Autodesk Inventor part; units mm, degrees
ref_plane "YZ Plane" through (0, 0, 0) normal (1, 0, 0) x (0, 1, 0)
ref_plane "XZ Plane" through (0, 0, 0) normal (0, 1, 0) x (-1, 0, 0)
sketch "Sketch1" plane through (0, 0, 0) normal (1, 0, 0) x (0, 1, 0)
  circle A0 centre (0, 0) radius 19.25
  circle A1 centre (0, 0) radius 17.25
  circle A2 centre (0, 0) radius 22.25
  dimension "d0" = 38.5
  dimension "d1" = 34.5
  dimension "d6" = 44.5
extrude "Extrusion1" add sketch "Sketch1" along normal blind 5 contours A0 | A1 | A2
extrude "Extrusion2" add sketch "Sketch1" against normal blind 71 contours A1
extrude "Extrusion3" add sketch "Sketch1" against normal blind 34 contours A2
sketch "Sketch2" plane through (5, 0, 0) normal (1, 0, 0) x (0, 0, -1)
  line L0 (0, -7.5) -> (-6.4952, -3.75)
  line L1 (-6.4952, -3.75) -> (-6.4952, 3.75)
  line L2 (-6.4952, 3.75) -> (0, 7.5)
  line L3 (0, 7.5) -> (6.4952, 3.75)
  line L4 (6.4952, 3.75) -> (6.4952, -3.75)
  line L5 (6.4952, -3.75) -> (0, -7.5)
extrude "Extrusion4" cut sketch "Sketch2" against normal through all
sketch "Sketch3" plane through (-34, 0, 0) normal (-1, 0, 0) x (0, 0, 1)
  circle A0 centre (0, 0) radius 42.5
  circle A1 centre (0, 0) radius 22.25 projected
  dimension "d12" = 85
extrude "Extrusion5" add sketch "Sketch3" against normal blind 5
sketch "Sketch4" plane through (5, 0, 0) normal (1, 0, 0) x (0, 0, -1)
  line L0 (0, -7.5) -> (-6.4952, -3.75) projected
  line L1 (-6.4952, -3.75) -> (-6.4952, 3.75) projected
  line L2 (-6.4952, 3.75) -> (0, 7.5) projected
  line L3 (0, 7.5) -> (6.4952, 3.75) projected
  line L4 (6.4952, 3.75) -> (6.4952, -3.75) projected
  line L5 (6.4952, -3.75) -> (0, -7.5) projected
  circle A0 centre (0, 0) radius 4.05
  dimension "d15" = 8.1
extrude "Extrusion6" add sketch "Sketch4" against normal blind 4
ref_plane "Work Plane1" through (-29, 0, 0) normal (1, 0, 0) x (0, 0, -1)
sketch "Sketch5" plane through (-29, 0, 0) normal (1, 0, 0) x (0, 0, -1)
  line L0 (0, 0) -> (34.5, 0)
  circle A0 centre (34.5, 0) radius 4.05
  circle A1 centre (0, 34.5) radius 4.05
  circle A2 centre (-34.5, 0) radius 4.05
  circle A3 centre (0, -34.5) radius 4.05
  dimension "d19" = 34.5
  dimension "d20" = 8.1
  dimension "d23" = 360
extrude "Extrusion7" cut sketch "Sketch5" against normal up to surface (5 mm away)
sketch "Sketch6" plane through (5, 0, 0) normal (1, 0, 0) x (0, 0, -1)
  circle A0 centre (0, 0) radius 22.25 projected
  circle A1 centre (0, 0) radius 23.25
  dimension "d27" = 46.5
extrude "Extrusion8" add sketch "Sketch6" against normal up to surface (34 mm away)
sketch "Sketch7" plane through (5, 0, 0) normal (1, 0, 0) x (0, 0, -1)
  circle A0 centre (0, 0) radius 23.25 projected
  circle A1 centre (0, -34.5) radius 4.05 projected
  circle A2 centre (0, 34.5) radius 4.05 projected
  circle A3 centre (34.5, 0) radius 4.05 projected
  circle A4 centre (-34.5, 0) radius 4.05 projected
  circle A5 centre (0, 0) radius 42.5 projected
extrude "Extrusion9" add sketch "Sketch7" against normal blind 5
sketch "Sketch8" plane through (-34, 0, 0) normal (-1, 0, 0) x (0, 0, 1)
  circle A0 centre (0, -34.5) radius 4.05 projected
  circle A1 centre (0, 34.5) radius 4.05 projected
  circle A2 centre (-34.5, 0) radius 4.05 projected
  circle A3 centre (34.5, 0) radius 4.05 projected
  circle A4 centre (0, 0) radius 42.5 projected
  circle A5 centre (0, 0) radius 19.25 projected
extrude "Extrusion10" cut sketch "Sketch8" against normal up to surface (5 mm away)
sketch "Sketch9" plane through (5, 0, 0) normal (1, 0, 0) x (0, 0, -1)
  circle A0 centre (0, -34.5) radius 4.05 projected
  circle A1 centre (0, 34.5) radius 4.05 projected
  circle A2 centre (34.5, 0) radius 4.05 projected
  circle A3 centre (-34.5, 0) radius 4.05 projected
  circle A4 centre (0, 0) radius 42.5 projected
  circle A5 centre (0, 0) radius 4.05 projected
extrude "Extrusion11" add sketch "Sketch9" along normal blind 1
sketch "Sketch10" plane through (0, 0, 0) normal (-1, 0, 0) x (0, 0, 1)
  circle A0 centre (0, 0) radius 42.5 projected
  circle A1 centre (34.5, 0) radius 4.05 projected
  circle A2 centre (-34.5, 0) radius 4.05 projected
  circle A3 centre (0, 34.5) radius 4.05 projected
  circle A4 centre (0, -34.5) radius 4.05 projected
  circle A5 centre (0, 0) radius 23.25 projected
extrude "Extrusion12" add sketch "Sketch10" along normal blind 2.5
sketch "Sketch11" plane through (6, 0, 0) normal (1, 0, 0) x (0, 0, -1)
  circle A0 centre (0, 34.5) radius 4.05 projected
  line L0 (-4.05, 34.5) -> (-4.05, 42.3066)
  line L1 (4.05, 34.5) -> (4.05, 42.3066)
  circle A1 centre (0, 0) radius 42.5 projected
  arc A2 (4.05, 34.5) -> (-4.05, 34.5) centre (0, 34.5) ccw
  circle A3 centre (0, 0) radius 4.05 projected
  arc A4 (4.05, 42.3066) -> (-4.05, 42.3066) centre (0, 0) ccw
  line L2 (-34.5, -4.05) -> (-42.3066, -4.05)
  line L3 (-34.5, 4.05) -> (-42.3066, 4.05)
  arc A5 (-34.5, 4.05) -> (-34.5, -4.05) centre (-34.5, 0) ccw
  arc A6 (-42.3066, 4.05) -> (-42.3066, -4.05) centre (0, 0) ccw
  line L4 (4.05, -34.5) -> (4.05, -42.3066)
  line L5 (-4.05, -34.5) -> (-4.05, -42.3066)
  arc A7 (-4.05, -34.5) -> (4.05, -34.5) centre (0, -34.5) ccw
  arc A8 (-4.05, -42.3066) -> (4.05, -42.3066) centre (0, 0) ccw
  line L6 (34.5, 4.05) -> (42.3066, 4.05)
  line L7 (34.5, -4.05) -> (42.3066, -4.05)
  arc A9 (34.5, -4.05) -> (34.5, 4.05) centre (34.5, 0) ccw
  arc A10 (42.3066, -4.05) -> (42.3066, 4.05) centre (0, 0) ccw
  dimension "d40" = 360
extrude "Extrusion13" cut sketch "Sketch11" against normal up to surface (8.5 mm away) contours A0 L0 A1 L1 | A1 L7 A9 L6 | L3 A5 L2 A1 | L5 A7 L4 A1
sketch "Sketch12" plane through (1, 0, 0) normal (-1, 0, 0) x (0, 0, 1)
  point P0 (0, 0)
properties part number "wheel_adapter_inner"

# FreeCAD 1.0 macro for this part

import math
import FreeCAD as App
import Part
import Sketcher
Q = App.Units.Quantity

doc = App.newDocument("Part")
params = doc.addObject("Spreadsheet::Sheet", "Params")
for row, (alias, value) in enumerate([
    ("sketch1_diameter", "44.5 mm"),
    ("pad1_length", "5 mm"),
    ("sketch2_diameter", "34.5 mm"),
    ("pad2_length", "71 mm"),
    ("sketch3_diameter", "44.5 mm"),
    ("sketch3_diameter2", "38.5 mm"),
    ("pad3_length", "34 mm"),
    ("sketch4_width", "7.5 mm"),
    ("sketch5_diameter", "85 mm"),
    ("sketch5_diameter2", "44.5 mm"),
    ("pad4_length", "5 mm"),
    ("sketch6_diameter", "8.1 mm"),
    ("sketch6_width", "7.5 mm"),
    ("pad5_length", "4 mm"),
    ("sketch7_diameter", "8.1 mm"),
    ("pocket2_length", "5 mm"),
    ("sketch8_diameter", "46.5 mm"),
    ("sketch8_diameter2", "44.5 mm"),
    ("pad6_length", "34 mm"),
    ("sketch9_diameter", "85 mm"),
    ("sketch9_diameter2", "8.1 mm"),
    ("sketch9_diameter3", "46.5 mm"),
    ("pad7_length", "5 mm"),
    ("sketch10_diameter", "85 mm"),
    ("sketch10_diameter2", "8.1 mm"),
    ("sketch10_diameter3", "38.5 mm"),
    ("pocket3_length", "5 mm"),
    ("sketch11_diameter", "85 mm"),
    ("sketch11_diameter2", "8.1 mm"),
    ("pad8_length", "1 mm"),
    ("sketch12_diameter", "85 mm"),
    ("sketch12_diameter2", "8.1 mm"),
    ("sketch12_diameter3", "46.5 mm"),
    ("pad9_length", "2.5 mm"),
    ("sketch13_radius", "42.5 mm"),
    ("sketch13_radius2", "4.05 mm"),
    ("pocket4_length", "8.5 mm"),
], start=1):
    params.set(f"A{row}", alias)
    params.set(f"B{row}", "=" + value)
    params.setAlias(f"B{row}", alias)

body = doc.addObject("PartDesign::Body", "Body")

# Sketch on YZ plane
sketch1 = body.newObject("Sketcher::SketchObject", "Sketch")
sketch1.AttachmentSupport = (doc.getObject("YZ_Plane"), [""])
sketch1.MapMode = "FlatFace"
sketch1.addGeometry(Part.Circle(App.Vector(0, 0, 0), App.Vector(0, 0, 1), 22), False)
sketch1.addConstraint(Sketcher.Constraint("Coincident", 0, 3, -1, 1))
sketch1.addConstraint(Sketcher.Constraint("Diameter", 0, 44.5))
sketch1.setExpression("Constraints[1]", "Params.sketch1_diameter")
pad1 = body.newObject("PartDesign::Pad", "Pad")
pad1.Profile = sketch1
pad1.setExpression("Length", "Params.pad1_length")

# Sketch on YZ plane
sketch2 = body.newObject("Sketcher::SketchObject", "Sketch001")
sketch2.AttachmentSupport = (doc.getObject("YZ_Plane"), [""])
sketch2.MapMode = "FlatFace"
sketch2.addGeometry(Part.Circle(App.Vector(0, 0, 0), App.Vector(0, 0, 1), 17), False)
sketch2.addConstraint(Sketcher.Constraint("Coincident", 0, 3, -1, 1))
sketch2.addConstraint(Sketcher.Constraint("Diameter", 0, 34.5))
sketch2.setExpression("Constraints[1]", "Params.sketch2_diameter")
pad2 = body.newObject("PartDesign::Pad", "Pad001")
pad2.Profile = sketch2
pad2.setExpression("Length", "Params.pad2_length")
pad2.Reversed = True

# Sketch on YZ plane
sketch3 = body.newObject("Sketcher::SketchObject", "Sketch002")
sketch3.AttachmentSupport = (doc.getObject("YZ_Plane"), [""])
sketch3.MapMode = "FlatFace"
sketch3.addGeometry(Part.Circle(App.Vector(0, 0, 0), App.Vector(0, 0, 1), 22), False)
sketch3.addGeometry(Part.Circle(App.Vector(0, 0, 0), App.Vector(0, 0, 1), 19), False)
sketch3.addConstraint(Sketcher.Constraint("Coincident", 0, 3, -1, 1))
sketch3.addConstraint(Sketcher.Constraint("Coincident", 1, 3, -1, 1))
sketch3.addConstraint(Sketcher.Constraint("Diameter", 0, 44.5))
sketch3.addConstraint(Sketcher.Constraint("Diameter", 1, 38.5))
sketch3.setExpression("Constraints[2]", "Params.sketch3_diameter")
sketch3.setExpression("Constraints[3]", "Params.sketch3_diameter2")
pad3 = body.newObject("PartDesign::Pad", "Pad002")
pad3.Profile = sketch3
pad3.setExpression("Length", "Params.pad3_length")
pad3.Reversed = True

# Sketch on YZ plane
sketch4 = body.newObject("Sketcher::SketchObject", "Sketch003")
sketch4.AttachmentSupport = (doc.getObject("YZ_Plane"), [""])
sketch4.MapMode = "FlatFace"
sketch4.AttachmentOffset = App.Placement(App.Vector(0, 0, 5), App.Rotation())
sketch4.addGeometry(Part.LineSegment(App.Vector(-4, 6, 0), App.Vector(-8, 0, 0)), False)
sketch4.addGeometry(Part.LineSegment(App.Vector(-8, 0, 0), App.Vector(-4, -6, 0)), False)
sketch4.addGeometry(Part.LineSegment(App.Vector(-4, -6, 0), App.Vector(4, -6, 0)), False)
sketch4.addGeometry(Part.LineSegment(App.Vector(4, -6, 0), App.Vector(8, 0, 0)), False)
sketch4.addGeometry(Part.LineSegment(App.Vector(8, 0, 0), App.Vector(4, 6, 0)), False)
sketch4.addGeometry(Part.LineSegment(App.Vector(4, 6, 0), App.Vector(-4, 6, 0)), False)
sketch4.addConstraint(Sketcher.Constraint("Coincident", 0, 2, 1, 1))
sketch4.addConstraint(Sketcher.Constraint("Coincident", 1, 2, 2, 1))
sketch4.addConstraint(Sketcher.Constraint("Coincident", 2, 2, 3, 1))
sketch4.addConstraint(Sketcher.Constraint("Coincident", 3, 2, 4, 1))
sketch4.addConstraint(Sketcher.Constraint("Coincident", 4, 2, 5, 1))
sketch4.addConstraint(Sketcher.Constraint("Coincident", 5, 2, 0, 1))
sketch4.addConstraint(Sketcher.Constraint("Horizontal", 2))
sketch4.addConstraint(Sketcher.Constraint("Horizontal", 5))
sketch4.addConstraint(Sketcher.Constraint("Symmetric", 0, 2, 3, 2, -1, 1))
sketch4.addConstraint(Sketcher.Constraint("Symmetric", 1, 2, 4, 2, -1, 1))
sketch4.addConstraint(Sketcher.Constraint("PointOnObject", 0, 2, -1))
sketch4.addConstraint(Sketcher.Constraint("Parallel", 0, 3))
sketch4.addConstraint(Sketcher.Constraint("Vertical", 2, 2, 4, 2))
sketch4.addConstraint(Sketcher.Constraint("Angle", 0, Q("-120 deg")))
sketch4.addConstraint(Sketcher.Constraint("DistanceX", 2, 1, 2, 2, 7.5))
sketch4.addConstraint(Sketcher.Constraint("DistanceX", 0, 2, 3, 2, 15.0))
sketch4.setExpression("Constraints[14]", "Params.sketch4_width")
pocket1 = body.newObject("PartDesign::Pocket", "Pocket")
pocket1.Profile = sketch4
pocket1.Type = "ThroughAll"

# Sketch on YZ plane
sketch5 = body.newObject("Sketcher::SketchObject", "Sketch004")
sketch5.AttachmentSupport = (doc.getObject("YZ_Plane"), [""])
sketch5.MapMode = "FlatFace"
sketch5.AttachmentOffset = App.Placement(App.Vector(0, 0, -34), App.Rotation())
sketch5.addGeometry(Part.Circle(App.Vector(0, 0, 0), App.Vector(0, 0, 1), 42), False)
sketch5.addGeometry(Part.Circle(App.Vector(0, 0, 0), App.Vector(0, 0, 1), 22), False)
sketch5.addConstraint(Sketcher.Constraint("Coincident", 0, 3, -1, 1))
sketch5.addConstraint(Sketcher.Constraint("Coincident", 1, 3, -1, 1))
sketch5.addConstraint(Sketcher.Constraint("Diameter", 0, 85.0))
sketch5.addConstraint(Sketcher.Constraint("Diameter", 1, 44.5))
sketch5.setExpression("Constraints[2]", "Params.sketch5_diameter")
sketch5.setExpression("Constraints[3]", "Params.sketch5_diameter2")
pad4 = body.newObject("PartDesign::Pad", "Pad003")
pad4.Profile = sketch5
pad4.setExpression("Length", "Params.pad4_length")

# Sketch on YZ plane
sketch6 = body.newObject("Sketcher::SketchObject", "Sketch005")
sketch6.AttachmentSupport = (doc.getObject("YZ_Plane"), [""])
sketch6.MapMode = "FlatFace"
sketch6.AttachmentOffset = App.Placement(App.Vector(0, 0, 5), App.Rotation())
sketch6.addGeometry(Part.LineSegment(App.Vector(-3.8, 6.5, 0), App.Vector(-7.5, 0, 0)), False)
sketch6.addGeometry(Part.LineSegment(App.Vector(-7.5, 0, 0), App.Vector(-3.8, -6.5, 0)), False)
sketch6.addGeometry(Part.LineSegment(App.Vector(-3.8, -6.5, 0), App.Vector(3.8, -6.5, 0)), False)
sketch6.addGeometry(Part.LineSegment(App.Vector(3.8, -6.5, 0), App.Vector(7.5, 0, 0)), False)
sketch6.addGeometry(Part.LineSegment(App.Vector(7.5, 0, 0), App.Vector(3.8, 6.5, 0)), False)
sketch6.addGeometry(Part.LineSegment(App.Vector(3.8, 6.5, 0), App.Vector(-3.8, 6.5, 0)), False)
sketch6.addGeometry(Part.Circle(App.Vector(0, 0, 0), App.Vector(0, 0, 1), 4), False)
sketch6.addConstraint(Sketcher.Constraint("Coincident", 0, 2, 1, 1))
sketch6.addConstraint(Sketcher.Constraint("Coincident", 1, 2, 2, 1))
sketch6.addConstraint(Sketcher.Constraint("Coincident", 2, 2, 3, 1))
sketch6.addConstraint(Sketcher.Constraint("Coincident", 3, 2, 4, 1))
sketch6.addConstraint(Sketcher.Constraint("Coincident", 4, 2, 5, 1))
sketch6.addConstraint(Sketcher.Constraint("Coincident", 5, 2, 0, 1))
sketch6.addConstraint(Sketcher.Constraint("Horizontal", 2))
sketch6.addConstraint(Sketcher.Constraint("Horizontal", 5))
sketch6.addConstraint(Sketcher.Constraint("Coincident", 6, 3, -1, 1))
sketch6.addConstraint(Sketcher.Constraint("Symmetric", 0, 2, 3, 2, -1, 1))
sketch6.addConstraint(Sketcher.Constraint("Symmetric", 1, 2, 4, 2, -1, 1))
sketch6.addConstraint(Sketcher.Constraint("PointOnObject", 0, 2, -1))
sketch6.addConstraint(Sketcher.Constraint("Parallel", 0, 3))
sketch6.addConstraint(Sketcher.Constraint("Vertical", 2, 2, 4, 2))
sketch6.addConstraint(Sketcher.Constraint("Diameter", 6, 8.1))
sketch6.addConstraint(Sketcher.Constraint("Angle", 0, Q("-120 deg")))
sketch6.addConstraint(Sketcher.Constraint("DistanceX", 2, 1, 2, 2, 7.5))
sketch6.addConstraint(Sketcher.Constraint("DistanceX", 0, 2, 3, 2, 15.0))
sketch6.setExpression("Constraints[14]", "Params.sketch6_diameter")
sketch6.setExpression("Constraints[16]", "Params.sketch6_width")
pad5 = body.newObject("PartDesign::Pad", "Pad004")
pad5.Profile = sketch6
pad5.setExpression("Length", "Params.pad5_length")
pad5.Reversed = True

# Sketch on YZ plane
sketch7 = body.newObject("Sketcher::SketchObject", "Sketch006")
sketch7.AttachmentSupport = (doc.getObject("YZ_Plane"), [""])
sketch7.MapMode = "FlatFace"
sketch7.AttachmentOffset = App.Placement(App.Vector(0, 0, -29), App.Rotation())
sketch7.addGeometry(Part.Circle(App.Vector(0, -34.5, 0), App.Vector(0, 0, 1), 4), False)
sketch7.addGeometry(Part.Circle(App.Vector(34.5, 0, 0), App.Vector(0, 0, 1), 4), False)
sketch7.addGeometry(Part.Circle(App.Vector(0, 34.5, 0), App.Vector(0, 0, 1), 4), False)
sketch7.addGeometry(Part.Circle(App.Vector(-34.5, 0, 0), App.Vector(0, 0, 1), 4), False)
sketch7.addConstraint(Sketcher.Constraint("Equal", 0, 1))
sketch7.addConstraint(Sketcher.Constraint("Equal", 1, 2))
sketch7.addConstraint(Sketcher.Constraint("Equal", 2, 3))
sketch7.addConstraint(Sketcher.Constraint("Symmetric", 0, 3, 2, 3, -1, 1))
sketch7.addConstraint(Sketcher.Constraint("Symmetric", 1, 3, 3, 3, -1, 1))
sketch7.addConstraint(Sketcher.Constraint("PointOnObject", 0, 3, -2))
sketch7.addConstraint(Sketcher.Constraint("PointOnObject", 1, 3, -1))
sketch7.addConstraint(Sketcher.Constraint("Diameter", 0, 8.1))
sketch7.addConstraint(Sketcher.Constraint("DistanceY", 0, 3, -1, 1, 34.5))
sketch7.addConstraint(Sketcher.Constraint("DistanceX", -1, 1, 1, 3, 34.5))
sketch7.setExpression("Constraints[7]", "Params.sketch7_diameter")
pocket2 = body.newObject("PartDesign::Pocket", "Pocket001")
pocket2.Profile = sketch7
pocket2.setExpression("Length", "Params.pocket2_length")

# Sketch on YZ plane
sketch8 = body.newObject("Sketcher::SketchObject", "Sketch007")
sketch8.AttachmentSupport = (doc.getObject("YZ_Plane"), [""])
sketch8.MapMode = "FlatFace"
sketch8.AttachmentOffset = App.Placement(App.Vector(0, 0, 5), App.Rotation())
sketch8.addGeometry(Part.Circle(App.Vector(0, 0, 0), App.Vector(0, 0, 1), 23), False)
sketch8.addGeometry(Part.Circle(App.Vector(0, 0, 0), App.Vector(0, 0, 1), 22), False)
sketch8.addConstraint(Sketcher.Constraint("Coincident", 0, 3, -1, 1))
sketch8.addConstraint(Sketcher.Constraint("Coincident", 1, 3, -1, 1))
sketch8.addConstraint(Sketcher.Constraint("Diameter", 0, 46.5))
sketch8.addConstraint(Sketcher.Constraint("Diameter", 1, 44.5))
sketch8.setExpression("Constraints[2]", "Params.sketch8_diameter")
sketch8.setExpression("Constraints[3]", "Params.sketch8_diameter2")
pad6 = body.newObject("PartDesign::Pad", "Pad005")
pad6.Profile = sketch8
pad6.setExpression("Length", "Params.pad6_length")
pad6.Reversed = True

# Sketch on YZ plane
sketch9 = body.newObject("Sketcher::SketchObject", "Sketch008")
sketch9.AttachmentSupport = (doc.getObject("YZ_Plane"), [""])
sketch9.MapMode = "FlatFace"
sketch9.AttachmentOffset = App.Placement(App.Vector(0, 0, 5), App.Rotation())
sketch9.addGeometry(Part.Circle(App.Vector(0, 0, 0), App.Vector(0, 0, 1), 42.5), False)
sketch9.addGeometry(Part.Circle(App.Vector(-34.5, 0, 0), App.Vector(0, 0, 1), 4), False)
sketch9.addGeometry(Part.Circle(App.Vector(0, 34.5, 0), App.Vector(0, 0, 1), 4), False)
sketch9.addGeometry(Part.Circle(App.Vector(0, 0, 0), App.Vector(0, 0, 1), 23.2), False)
sketch9.addGeometry(Part.Circle(App.Vector(0, -34.5, 0), App.Vector(0, 0, 1), 4), False)
sketch9.addGeometry(Part.Circle(App.Vector(34.5, 0, 0), App.Vector(0, 0, 1), 4), False)
sketch9.addConstraint(Sketcher.Constraint("Coincident", 0, 3, -1, 1))
sketch9.addConstraint(Sketcher.Constraint("Coincident", 3, 3, -1, 1))
sketch9.addConstraint(Sketcher.Constraint("Equal", 1, 2))
sketch9.addConstraint(Sketcher.Constraint("Equal", 2, 4))
sketch9.addConstraint(Sketcher.Constraint("Equal", 4, 5))
sketch9.addConstraint(Sketcher.Constraint("Symmetric", 2, 3, 4, 3, -1, 1))
sketch9.addConstraint(Sketcher.Constraint("Symmetric", 1, 3, 5, 3, -1, 1))
sketch9.addConstraint(Sketcher.Constraint("PointOnObject", 1, 3, -1))
sketch9.addConstraint(Sketcher.Constraint("PointOnObject", 2, 3, -2))
sketch9.addConstraint(Sketcher.Constraint("Diameter", 0, 85.0))
sketch9.addConstraint(Sketcher.Constraint("Diameter", 1, 8.1))
sketch9.addConstraint(Sketcher.Constraint("Diameter", 3, 46.5))
sketch9.addConstraint(Sketcher.Constraint("DistanceY", 4, 3, 2, 3, 69.0))
sketch9.addConstraint(Sketcher.Constraint("DistanceX", 1, 3, 5, 3, 69.0))
sketch9.setExpression("Constraints[9]", "Params.sketch9_diameter")
sketch9.setExpression("Constraints[10]", "Params.sketch9_diameter2")
sketch9.setExpression("Constraints[11]", "Params.sketch9_diameter3")
pad7 = body.newObject("PartDesign::Pad", "Pad006")
pad7.Profile = sketch9
pad7.setExpression("Length", "Params.pad7_length")
pad7.Reversed = True

# Sketch on YZ plane
sketch10 = body.newObject("Sketcher::SketchObject", "Sketch009")
sketch10.AttachmentSupport = (doc.getObject("YZ_Plane"), [""])
sketch10.MapMode = "FlatFace"
sketch10.AttachmentOffset = App.Placement(App.Vector(0, 0, -34), App.Rotation())
sketch10.addGeometry(Part.Circle(App.Vector(0, 0, 0), App.Vector(0, 0, 1), 42.5), False)
sketch10.addGeometry(Part.Circle(App.Vector(-34.5, 0, 0), App.Vector(0, 0, 1), 4), False)
sketch10.addGeometry(Part.Circle(App.Vector(0, -34.5, 0), App.Vector(0, 0, 1), 4), False)
sketch10.addGeometry(Part.Circle(App.Vector(0, 0, 0), App.Vector(0, 0, 1), 19.2), False)
sketch10.addGeometry(Part.Circle(App.Vector(0, 34.5, 0), App.Vector(0, 0, 1), 4), False)
sketch10.addGeometry(Part.Circle(App.Vector(34.5, 0, 0), App.Vector(0, 0, 1), 4), False)
sketch10.addConstraint(Sketcher.Constraint("Coincident", 0, 3, -1, 1))
sketch10.addConstraint(Sketcher.Constraint("Coincident", 3, 3, -1, 1))
sketch10.addConstraint(Sketcher.Constraint("Equal", 1, 2))
sketch10.addConstraint(Sketcher.Constraint("Equal", 2, 4))
sketch10.addConstraint(Sketcher.Constraint("Equal", 4, 5))
sketch10.addConstraint(Sketcher.Constraint("Symmetric", 2, 3, 4, 3, -1, 1))
sketch10.addConstraint(Sketcher.Constraint("Symmetric", 1, 3, 5, 3, -1, 1))
sketch10.addConstraint(Sketcher.Constraint("PointOnObject", 1, 3, -1))
sketch10.addConstraint(Sketcher.Constraint("PointOnObject", 2, 3, -2))
sketch10.addConstraint(Sketcher.Constraint("Diameter", 0, 85.0))
sketch10.addConstraint(Sketcher.Constraint("Diameter", 1, 8.1))
sketch10.addConstraint(Sketcher.Constraint("Diameter", 3, 38.5))
sketch10.addConstraint(Sketcher.Constraint("DistanceY", 2, 3, 4, 3, 69.0))
sketch10.addConstraint(Sketcher.Constraint("DistanceX", 1, 3, 5, 3, 69.0))
sketch10.setExpression("Constraints[9]", "Params.sketch10_diameter")
sketch10.setExpression("Constraints[10]", "Params.sketch10_diameter2")
sketch10.setExpression("Constraints[11]", "Params.sketch10_diameter3")
pocket3 = body.newObject("PartDesign::Pocket", "Pocket002")
pocket3.Profile = sketch10
pocket3.setExpression("Length", "Params.pocket3_length")
pocket3.Reversed = True

# Sketch on YZ plane
sketch11 = body.newObject("Sketcher::SketchObject", "Sketch010")
sketch11.AttachmentSupport = (doc.getObject("YZ_Plane"), [""])
sketch11.MapMode = "FlatFace"
sketch11.AttachmentOffset = App.Placement(App.Vector(0, 0, 5), App.Rotation())
sketch11.addGeometry(Part.Circle(App.Vector(0, 0, 0), App.Vector(0, 0, 1), 42.5), False)
sketch11.addGeometry(Part.Circle(App.Vector(-34.5, 0, 0), App.Vector(0, 0, 1), 4), False)
sketch11.addGeometry(Part.Circle(App.Vector(0, 34.5, 0), App.Vector(0, 0, 1), 4), False)
sketch11.addGeometry(Part.Circle(App.Vector(0, 0, 0), App.Vector(0, 0, 1), 4), False)
sketch11.addGeometry(Part.Circle(App.Vector(0, -34.5, 0), App.Vector(0, 0, 1), 4), False)
sketch11.addGeometry(Part.Circle(App.Vector(34.5, 0, 0), App.Vector(0, 0, 1), 4), False)
sketch11.addConstraint(Sketcher.Constraint("Coincident", 0, 3, -1, 1))
sketch11.addConstraint(Sketcher.Constraint("Coincident", 3, 3, -1, 1))
sketch11.addConstraint(Sketcher.Constraint("Equal", 1, 2))
sketch11.addConstraint(Sketcher.Constraint("Equal", 2, 3))
sketch11.addConstraint(Sketcher.Constraint("Equal", 3, 4))
sketch11.addConstraint(Sketcher.Constraint("Equal", 4, 5))
sketch11.addConstraint(Sketcher.Constraint("Symmetric", 2, 3, 4, 3, -1, 1))
sketch11.addConstraint(Sketcher.Constraint("Symmetric", 1, 3, 5, 3, -1, 1))
sketch11.addConstraint(Sketcher.Constraint("PointOnObject", 1, 3, -1))
sketch11.addConstraint(Sketcher.Constraint("PointOnObject", 2, 3, -2))
sketch11.addConstraint(Sketcher.Constraint("Diameter", 0, 85.0))
sketch11.addConstraint(Sketcher.Constraint("Diameter", 1, 8.1))
sketch11.addConstraint(Sketcher.Constraint("DistanceY", 4, 3, 2, 3, 69.0))
sketch11.addConstraint(Sketcher.Constraint("DistanceX", 1, 3, 5, 3, 69.0))
sketch11.setExpression("Constraints[10]", "Params.sketch11_diameter")
sketch11.setExpression("Constraints[11]", "Params.sketch11_diameter2")
pad8 = body.newObject("PartDesign::Pad", "Pad007")
pad8.Profile = sketch11
pad8.setExpression("Length", "Params.pad8_length")

# Sketch on YZ plane
sketch12 = body.newObject("Sketcher::SketchObject", "Sketch011")
sketch12.AttachmentSupport = (doc.getObject("YZ_Plane"), [""])
sketch12.MapMode = "FlatFace"
sketch12.addGeometry(Part.Circle(App.Vector(0, 0, 0), App.Vector(0, 0, 1), 42.5), False)
sketch12.addGeometry(Part.Circle(App.Vector(-34.5, 0, 0), App.Vector(0, 0, 1), 4), False)
sketch12.addGeometry(Part.Circle(App.Vector(0, -34.5, 0), App.Vector(0, 0, 1), 4), False)
sketch12.addGeometry(Part.Circle(App.Vector(0, 0, 0), App.Vector(0, 0, 1), 23.2), False)
sketch12.addGeometry(Part.Circle(App.Vector(0, 34.5, 0), App.Vector(0, 0, 1), 4), False)
sketch12.addGeometry(Part.Circle(App.Vector(34.5, 0, 0), App.Vector(0, 0, 1), 4), False)
sketch12.addConstraint(Sketcher.Constraint("Coincident", 0, 3, -1, 1))
sketch12.addConstraint(Sketcher.Constraint("Coincident", 3, 3, -1, 1))
sketch12.addConstraint(Sketcher.Constraint("Equal", 1, 2))
sketch12.addConstraint(Sketcher.Constraint("Equal", 2, 4))
sketch12.addConstraint(Sketcher.Constraint("Equal", 4, 5))
sketch12.addConstraint(Sketcher.Constraint("Symmetric", 2, 3, 4, 3, -1, 1))
sketch12.addConstraint(Sketcher.Constraint("Symmetric", 1, 3, 5, 3, -1, 1))
sketch12.addConstraint(Sketcher.Constraint("PointOnObject", 1, 3, -1))
sketch12.addConstraint(Sketcher.Constraint("PointOnObject", 2, 3, -2))
sketch12.addConstraint(Sketcher.Constraint("Diameter", 0, 85.0))
sketch12.addConstraint(Sketcher.Constraint("Diameter", 1, 8.1))
sketch12.addConstraint(Sketcher.Constraint("Diameter", 3, 46.5))
sketch12.addConstraint(Sketcher.Constraint("DistanceY", 2, 3, 4, 3, 69.0))
sketch12.addConstraint(Sketcher.Constraint("DistanceX", 1, 3, 5, 3, 69.0))
sketch12.setExpression("Constraints[9]", "Params.sketch12_diameter")
sketch12.setExpression("Constraints[10]", "Params.sketch12_diameter2")
sketch12.setExpression("Constraints[11]", "Params.sketch12_diameter3")
pad9 = body.newObject("PartDesign::Pad", "Pad008")
pad9.Profile = sketch12
pad9.setExpression("Length", "Params.pad9_length")
pad9.Reversed = True

# Sketch on YZ plane
sketch13 = body.newObject("Sketcher::SketchObject", "Sketch012")
sketch13.AttachmentSupport = (doc.getObject("YZ_Plane"), [""])
sketch13.MapMode = "FlatFace"
sketch13.AttachmentOffset = App.Placement(App.Vector(0, 0, 6), App.Rotation())
sketch13.addGeometry(Part.ArcOfCircle(Part.Circle(App.Vector(34.5, 0, 0), App.Vector(0, 0, 1), 4), math.radians(-90), math.radians(90)), False)
sketch13.addGeometry(Part.LineSegment(App.Vector(34.5, -4, 0), App.Vector(42.3, -4, 0)), False)
sketch13.addGeometry(Part.ArcOfCircle(Part.Circle(App.Vector(0, 0, 0), App.Vector(0, 0, 1), 42.5), math.radians(-5.47), math.radians(5.47)), False)
sketch13.addGeometry(Part.LineSegment(App.Vector(42.3, 4, 0), App.Vector(34.5, 4, 0)), False)
sketch13.addGeometry(Part.ArcOfCircle(Part.Circle(App.Vector(0, 0, 0), App.Vector(0, 0, 1), 42.5), math.radians(-95.47), math.radians(-84.53)), False)
sketch13.addGeometry(Part.LineSegment(App.Vector(4, -42.3, 0), App.Vector(4, -34.5, 0)), False)
sketch13.addGeometry(Part.ArcOfCircle(Part.Circle(App.Vector(0, -34.5, 0), App.Vector(0, 0, 1), 4), math.radians(180), math.radians(360)), False)
sketch13.addGeometry(Part.LineSegment(App.Vector(-4, -34.5, 0), App.Vector(-4, -42.3, 0)), False)
sketch13.addGeometry(Part.LineSegment(App.Vector(4, 34.5, 0), App.Vector(4, 42.3, 0)), False)
sketch13.addGeometry(Part.ArcOfCircle(Part.Circle(App.Vector(0, 0, 0), App.Vector(0, 0, 1), 42.5), math.radians(84.53), math.radians(95.47)), False)
sketch13.addGeometry(Part.LineSegment(App.Vector(-4, 42.3, 0), App.Vector(-4, 34.5, 0)), False)
sketch13.addGeometry(Part.ArcOfCircle(Part.Circle(App.Vector(0, 34.5, 0), App.Vector(0, 0, 1), 4), math.radians(0), math.radians(180)), False)
sketch13.addGeometry(Part.LineSegment(App.Vector(-34.5, 4, 0), App.Vector(-42.3, 4, 0)), False)
sketch13.addGeometry(Part.ArcOfCircle(Part.Circle(App.Vector(0, 0, 0), App.Vector(0, 0, 1), 42.5), math.radians(174.53), math.radians(185.47)), False)
sketch13.addGeometry(Part.LineSegment(App.Vector(-42.3, -4, 0), App.Vector(-34.5, -4, 0)), False)
sketch13.addGeometry(Part.ArcOfCircle(Part.Circle(App.Vector(-34.5, 0, 0), App.Vector(0, 0, 1), 4), math.radians(90), math.radians(270)), False)
sketch13.addConstraint(Sketcher.Constraint("Tangent", 0, 1, 1, 1))
sketch13.addConstraint(Sketcher.Constraint("Coincident", 1, 2, 2, 1))
sketch13.addConstraint(Sketcher.Constraint("Coincident", 2, 2, 3, 1))
sketch13.addConstraint(Sketcher.Constraint("Tangent", 3, 2, 0, 2))
sketch13.addConstraint(Sketcher.Constraint("Coincident", 4, 2, 5, 1))
sketch13.addConstraint(Sketcher.Constraint("Tangent", 5, 2, 6, 2))
sketch13.addConstraint(Sketcher.Constraint("Tangent", 6, 1, 7, 1))
sketch13.addConstraint(Sketcher.Constraint("Coincident", 7, 2, 4, 1))
sketch13.addConstraint(Sketcher.Constraint("Coincident", 8, 2, 9, 1))
sketch13.addConstraint(Sketcher.Constraint("Coincident", 9, 2, 10, 1))
sketch13.addConstraint(Sketcher.Constraint("Tangent", 10, 2, 11, 2))
sketch13.addConstraint(Sketcher.Constraint("Tangent", 11, 1, 8, 1))
sketch13.addConstraint(Sketcher.Constraint("Coincident", 12, 2, 13, 1))
sketch13.addConstraint(Sketcher.Constraint("Coincident", 13, 2, 14, 1))
sketch13.addConstraint(Sketcher.Constraint("Tangent", 14, 2, 15, 2))
sketch13.addConstraint(Sketcher.Constraint("Tangent", 15, 1, 12, 1))
sketch13.addConstraint(Sketcher.Constraint("Horizontal", 1))
sketch13.addConstraint(Sketcher.Constraint("Horizontal", 3))
sketch13.addConstraint(Sketcher.Constraint("Vertical", 5))
sketch13.addConstraint(Sketcher.Constraint("Vertical", 7))
sketch13.addConstraint(Sketcher.Constraint("Vertical", 8))
sketch13.addConstraint(Sketcher.Constraint("Vertical", 10))
sketch13.addConstraint(Sketcher.Constraint("Horizontal", 12))
sketch13.addConstraint(Sketcher.Constraint("Horizontal", 14))
sketch13.addConstraint(Sketcher.Constraint("Coincident", 2, 3, -1, 1))
sketch13.addConstraint(Sketcher.Constraint("Coincident", 4, 3, -1, 1))
sketch13.addConstraint(Sketcher.Constraint("Coincident", 9, 3, -1, 1))
sketch13.addConstraint(Sketcher.Constraint("Coincident", 13, 3, -1, 1))
sketch13.addConstraint(Sketcher.Constraint("Equal", 2, 4))
sketch13.addConstraint(Sketcher.Constraint("Equal", 0, 6))
sketch13.addConstraint(Sketcher.Constraint("Equal", 4, 9))
sketch13.addConstraint(Sketcher.Constraint("Equal", 6, 11))
sketch13.addConstraint(Sketcher.Constraint("Equal", 9, 13))
sketch13.addConstraint(Sketcher.Constraint("Equal", 11, 15))
sketch13.addConstraint(Sketcher.Constraint("Symmetric", 6, 3, 11, 3, -1, 1))
sketch13.addConstraint(Sketcher.Constraint("Symmetric", 0, 3, 15, 3, -1, 1))
sketch13.addConstraint(Sketcher.Constraint("PointOnObject", 0, 3, -1))
sketch13.addConstraint(Sketcher.Constraint("PointOnObject", 6, 3, -2))
sketch13.addConstraint(Sketcher.Constraint("Equal", 14, 5))
sketch13.addConstraint(Sketcher.Constraint("Radius", 2, 42.5))
sketch13.addConstraint(Sketcher.Constraint("Radius", 0, 4.05))
sketch13.addConstraint(Sketcher.Constraint("DistanceY", 6, 3, 11, 3, 69.0))
sketch13.setExpression("Constraints[39]", "Params.sketch13_radius")
sketch13.setExpression("Constraints[40]", "Params.sketch13_radius2")
pocket4 = body.newObject("PartDesign::Pocket", "Pocket003")
pocket4.Profile = sketch13
pocket4.setExpression("Length", "Params.pocket4_length")

doc.recompute()
